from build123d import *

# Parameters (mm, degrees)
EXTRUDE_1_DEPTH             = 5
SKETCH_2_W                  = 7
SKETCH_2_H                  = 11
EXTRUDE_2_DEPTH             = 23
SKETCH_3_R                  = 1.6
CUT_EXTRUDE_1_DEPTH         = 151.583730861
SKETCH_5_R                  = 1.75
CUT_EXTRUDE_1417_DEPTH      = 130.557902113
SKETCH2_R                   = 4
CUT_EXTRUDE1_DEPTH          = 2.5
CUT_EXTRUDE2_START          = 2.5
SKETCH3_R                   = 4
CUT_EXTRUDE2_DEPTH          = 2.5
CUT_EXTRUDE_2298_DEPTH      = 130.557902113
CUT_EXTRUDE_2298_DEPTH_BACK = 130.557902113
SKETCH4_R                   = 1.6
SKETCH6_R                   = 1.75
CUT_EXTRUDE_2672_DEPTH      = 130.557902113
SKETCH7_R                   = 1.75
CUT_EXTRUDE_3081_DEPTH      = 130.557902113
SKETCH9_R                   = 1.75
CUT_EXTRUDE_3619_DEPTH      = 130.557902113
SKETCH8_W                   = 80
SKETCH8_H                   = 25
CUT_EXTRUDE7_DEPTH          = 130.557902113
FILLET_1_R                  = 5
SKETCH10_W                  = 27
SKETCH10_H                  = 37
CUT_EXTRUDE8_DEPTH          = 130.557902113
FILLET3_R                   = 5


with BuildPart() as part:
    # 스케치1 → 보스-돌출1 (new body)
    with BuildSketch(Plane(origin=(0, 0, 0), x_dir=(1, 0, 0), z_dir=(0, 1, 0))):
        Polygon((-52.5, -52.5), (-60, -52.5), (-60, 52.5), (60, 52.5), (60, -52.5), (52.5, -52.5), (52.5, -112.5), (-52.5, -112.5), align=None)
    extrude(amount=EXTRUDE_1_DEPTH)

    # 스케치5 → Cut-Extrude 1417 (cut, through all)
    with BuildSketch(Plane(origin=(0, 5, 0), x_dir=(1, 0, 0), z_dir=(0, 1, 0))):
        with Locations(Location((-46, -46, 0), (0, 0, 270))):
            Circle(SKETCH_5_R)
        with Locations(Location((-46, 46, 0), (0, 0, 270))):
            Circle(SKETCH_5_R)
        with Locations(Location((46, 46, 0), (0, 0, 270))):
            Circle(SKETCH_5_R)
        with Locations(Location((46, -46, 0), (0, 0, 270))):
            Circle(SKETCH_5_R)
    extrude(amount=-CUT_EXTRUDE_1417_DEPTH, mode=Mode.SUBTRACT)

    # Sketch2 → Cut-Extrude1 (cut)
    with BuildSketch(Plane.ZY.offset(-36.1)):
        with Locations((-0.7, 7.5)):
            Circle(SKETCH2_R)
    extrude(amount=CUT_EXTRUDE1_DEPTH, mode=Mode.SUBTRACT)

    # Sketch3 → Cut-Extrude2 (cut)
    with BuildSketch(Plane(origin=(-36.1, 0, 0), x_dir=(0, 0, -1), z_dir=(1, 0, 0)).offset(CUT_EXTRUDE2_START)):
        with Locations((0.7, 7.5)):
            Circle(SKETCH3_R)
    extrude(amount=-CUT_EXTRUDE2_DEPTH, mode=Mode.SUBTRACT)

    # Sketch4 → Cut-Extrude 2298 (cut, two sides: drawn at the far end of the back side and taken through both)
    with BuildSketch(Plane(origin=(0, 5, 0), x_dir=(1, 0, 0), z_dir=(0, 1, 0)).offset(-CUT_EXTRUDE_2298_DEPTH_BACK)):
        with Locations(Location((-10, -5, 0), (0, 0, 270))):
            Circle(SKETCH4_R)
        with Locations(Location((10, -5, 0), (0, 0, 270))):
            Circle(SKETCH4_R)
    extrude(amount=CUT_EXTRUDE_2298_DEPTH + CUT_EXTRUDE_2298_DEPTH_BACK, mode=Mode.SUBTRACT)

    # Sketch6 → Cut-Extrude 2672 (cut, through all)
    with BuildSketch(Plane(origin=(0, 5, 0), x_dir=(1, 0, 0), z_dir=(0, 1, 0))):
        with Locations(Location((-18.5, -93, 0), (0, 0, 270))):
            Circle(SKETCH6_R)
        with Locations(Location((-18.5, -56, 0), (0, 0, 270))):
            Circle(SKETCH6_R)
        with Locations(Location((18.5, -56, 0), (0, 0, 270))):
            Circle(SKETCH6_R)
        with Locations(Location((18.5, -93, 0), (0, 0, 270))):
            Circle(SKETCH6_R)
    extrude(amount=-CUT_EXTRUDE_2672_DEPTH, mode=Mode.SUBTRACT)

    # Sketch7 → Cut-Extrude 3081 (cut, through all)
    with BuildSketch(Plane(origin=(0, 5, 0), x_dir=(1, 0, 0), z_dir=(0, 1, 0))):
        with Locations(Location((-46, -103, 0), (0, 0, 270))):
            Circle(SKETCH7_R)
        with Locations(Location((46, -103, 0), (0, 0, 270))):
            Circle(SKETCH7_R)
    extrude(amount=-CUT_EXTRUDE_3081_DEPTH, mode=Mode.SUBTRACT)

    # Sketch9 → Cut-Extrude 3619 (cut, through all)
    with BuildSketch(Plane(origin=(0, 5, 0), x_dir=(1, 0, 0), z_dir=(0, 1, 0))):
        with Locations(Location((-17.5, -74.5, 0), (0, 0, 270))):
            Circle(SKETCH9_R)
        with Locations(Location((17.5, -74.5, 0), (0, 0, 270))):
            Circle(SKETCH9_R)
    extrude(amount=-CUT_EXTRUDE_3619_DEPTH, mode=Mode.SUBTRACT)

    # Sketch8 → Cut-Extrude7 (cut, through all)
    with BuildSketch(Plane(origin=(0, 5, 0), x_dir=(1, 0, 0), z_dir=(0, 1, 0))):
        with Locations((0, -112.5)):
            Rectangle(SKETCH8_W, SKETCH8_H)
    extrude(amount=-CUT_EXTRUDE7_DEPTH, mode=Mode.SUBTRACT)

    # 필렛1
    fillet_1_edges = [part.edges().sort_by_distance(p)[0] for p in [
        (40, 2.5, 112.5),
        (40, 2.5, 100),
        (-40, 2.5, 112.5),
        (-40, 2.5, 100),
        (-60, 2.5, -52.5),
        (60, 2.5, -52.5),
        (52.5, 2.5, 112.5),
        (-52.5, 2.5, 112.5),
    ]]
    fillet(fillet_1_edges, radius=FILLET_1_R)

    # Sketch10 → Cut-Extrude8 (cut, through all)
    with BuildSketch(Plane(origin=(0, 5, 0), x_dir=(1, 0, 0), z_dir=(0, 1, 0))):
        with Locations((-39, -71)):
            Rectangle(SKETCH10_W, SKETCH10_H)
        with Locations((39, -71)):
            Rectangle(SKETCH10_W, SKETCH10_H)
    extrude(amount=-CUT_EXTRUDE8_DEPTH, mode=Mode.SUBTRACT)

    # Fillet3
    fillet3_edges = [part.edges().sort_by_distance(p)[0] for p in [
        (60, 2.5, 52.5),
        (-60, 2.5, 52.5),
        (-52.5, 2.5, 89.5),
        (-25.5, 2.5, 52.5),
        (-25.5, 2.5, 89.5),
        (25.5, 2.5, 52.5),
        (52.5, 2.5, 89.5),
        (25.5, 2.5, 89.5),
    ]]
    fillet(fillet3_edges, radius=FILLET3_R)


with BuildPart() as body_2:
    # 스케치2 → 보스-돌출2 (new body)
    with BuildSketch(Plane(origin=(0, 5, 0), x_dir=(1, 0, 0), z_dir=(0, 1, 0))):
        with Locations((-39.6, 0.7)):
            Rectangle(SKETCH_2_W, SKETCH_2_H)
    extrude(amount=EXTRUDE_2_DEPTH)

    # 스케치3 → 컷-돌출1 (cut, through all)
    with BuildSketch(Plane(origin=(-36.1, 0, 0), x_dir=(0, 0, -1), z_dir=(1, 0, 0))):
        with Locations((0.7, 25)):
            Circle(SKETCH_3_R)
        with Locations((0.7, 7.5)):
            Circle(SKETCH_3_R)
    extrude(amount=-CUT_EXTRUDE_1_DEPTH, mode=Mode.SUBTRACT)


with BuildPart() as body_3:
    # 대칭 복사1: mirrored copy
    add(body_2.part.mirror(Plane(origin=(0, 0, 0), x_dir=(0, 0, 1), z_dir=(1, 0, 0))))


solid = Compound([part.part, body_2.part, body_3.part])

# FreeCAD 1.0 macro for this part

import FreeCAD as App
import Part
import Sketcher
Q = App.Units.Quantity


def edges_at(feature, points):
    """Names of the edges that pass closest to the given points."""
    edges = feature.Shape.Edges
    near = lambda p: min(range(len(edges)), key=lambda i: edges[i].distToShape(Part.Vertex(*p))[0])
    return sorted({f"Edge{near(p) + 1}" for p in points})


def add_polygon(sketch, points):
    """Adds a closed chain of lines whose ends are joined by coincident constraints."""
    first, n = sketch.GeometryCount, len(points)
    for a, b in zip(points, points[1:] + points[:1]):
        sketch.addGeometry(Part.LineSegment(App.Vector(*a, 0), App.Vector(*b, 0)), False)
    for i in range(n):
        sketch.addConstraint(Sketcher.Constraint("Coincident", first + i, 2, first + (i + 1) % n, 1))

doc = App.newDocument("Part")
params = doc.addObject("Spreadsheet::Sheet", "Params")
for row, (alias, value) in enumerate([
    ("sketch1_width", "105 mm"),
    ("sketch1_width2", "120 mm"),
    ("sketch1_height", "60 mm"),
    ("pad1_length", "5 mm"),
    ("sketch2_diameter", "3.5 mm"),
    ("sketch3_diameter", "8 mm"),
    ("pocket2_length", "2.5 mm"),
    ("sketch4_diameter", "8 mm"),
    ("pocket3_length", "2.5 mm"),
    ("sketch5_diameter", "3.2 mm"),
    ("sketch6_diameter", "3.5 mm"),
    ("sketch7_diameter", "3.5 mm"),
    ("sketch8_diameter", "3.5 mm"),
    ("sketch9_width", "80 mm"),
    ("sketch9_height", "25 mm"),
    ("fillet_radius", "5 mm"),
    ("sketch10_width", "27 mm"),
    ("sketch10_height", "37 mm"),
    ("fillet2_radius", "5 mm"),
    ("sketch11_width", "7 mm"),
    ("sketch11_height", "11 mm"),
    ("pad2_length", "23 mm"),
    ("sketch12_diameter", "3.2 mm"),
], start=1):
    params.set(f"A{row}", alias)
    params.set(f"B{row}", "=" + value)
    params.setAlias(f"B{row}", alias)

body = doc.addObject("PartDesign::Body", "Body")

# Sketch on XZ plane
sketch1 = doc.addObject("Sketcher::SketchObject", "Sketch")
body.addObject(sketch1)
sketch1.AttachmentSupport = (doc.XZ_Plane, [""])
sketch1.MapMode = "FlatFace"
add_polygon(sketch1, [(-60, 52.5), (-52.5, 52.5), (-52.5, 112.5), (52.5, 112.5), (52.5, 52.5), (60, 52.5), (60, -52.5), (-60, -52.5)])  # lines 0-7
sketch1.addConstraint([
    Sketcher.Constraint("Horizontal", 0),
    Sketcher.Constraint("Vertical", 1),
    Sketcher.Constraint("Horizontal", 2),
    Sketcher.Constraint("Vertical", 3),
    Sketcher.Constraint("Horizontal", 4),
    Sketcher.Constraint("Vertical", 5),
    Sketcher.Constraint("Horizontal", 6),
    Sketcher.Constraint("Vertical", 7),
    Sketcher.Constraint("Symmetric", 4, 2, 6, 2, -1, 1),
    Sketcher.Constraint("Symmetric", 0, 2, 3, 2, -2),
    Sketcher.Constraint("Equal", 2, 5),
    Sketcher.Constraint("DistanceX", 2, 1, 2, 2, Q("105 mm")),
    Sketcher.Constraint("DistanceX", 6, 2, 6, 1, Q("120 mm")),
    Sketcher.Constraint("DistanceY", 1, 1, 1, 2, Q("60 mm")),
])
sketch1.setExpression("Constraints[19]", "Params.sketch1_width")
sketch1.setExpression("Constraints[20]", "Params.sketch1_width2")
sketch1.setExpression("Constraints[21]", "Params.sketch1_height")
pad1 = doc.addObject("PartDesign::Pad", "Pad")
body.addObject(pad1)
pad1.Profile = sketch1
pad1.setExpression("Length", "Params.pad1_length")
pad1.Reversed = True

# Sketch on XZ plane
sketch2 = doc.addObject("Sketcher::SketchObject", "Sketch001")
body.addObject(sketch2)
sketch2.AttachmentSupport = (doc.XZ_Plane, [""])
sketch2.MapMode = "FlatFace"
sketch2.AttachmentOffset = App.Placement(App.Vector(0, 0, -5), App.Rotation())
sketch2.addGeometry([
    Part.Circle(App.Vector(-46, 46, 0), App.Vector(0, 0, 1), 1.75),
    Part.Circle(App.Vector(-46, -46, 0), App.Vector(0, 0, 1), 1.75),
    Part.Circle(App.Vector(46, -46, 0), App.Vector(0, 0, 1), 1.75),
    Part.Circle(App.Vector(46, 46, 0), App.Vector(0, 0, 1), 1.75),
], False)
sketch2.addConstraint([
    Sketcher.Constraint("Equal", 0, 1),
    Sketcher.Constraint("Equal", 1, 2),
    Sketcher.Constraint("Equal", 2, 3),
    Sketcher.Constraint("Symmetric", 0, 3, 2, 3, -1, 1),
    Sketcher.Constraint("Symmetric", 1, 3, 3, 3, -1, 1),
    Sketcher.Constraint("Symmetric", 1, 3, 2, 3, -2),
    Sketcher.Constraint("Diameter", 0, Q("3.5 mm")),
    Sketcher.Constraint("DistanceX", 0, 3, -1, 1, Q("46 mm")),
    Sketcher.Constraint("DistanceY", -1, 1, 0, 3, Q("46 mm")),
])
sketch2.setExpression("Constraints[6]", "Params.sketch2_diameter")
pocket1 = doc.addObject("PartDesign::Pocket", "Pocket")
body.addObject(pocket1)
pocket1.Profile = sketch2
pocket1.Type = "ThroughAll"
pocket1.Reversed = True

# Sketch on YZ plane
sketch3 = doc.addObject("Sketcher::SketchObject", "Sketch002")
body.addObject(sketch3)
sketch3.AttachmentSupport = (doc.YZ_Plane, [""])
sketch3.MapMode = "FlatFace"
sketch3.AttachmentOffset = App.Placement(App.Vector(0, 0, 36.1), App.Rotation())
sketch3.addGeometry(Part.Circle(App.Vector(7.5, -0.7, 0), App.Vector(0, 0, 1), 4), False)
sketch3.addConstraint([
    Sketcher.Constraint("Diameter", 0, Q("8 mm")),
    Sketcher.Constraint("DistanceX", -1, 1, 0, 3, Q("7.5 mm")),
    Sketcher.Constraint("DistanceY", 0, 3, -1, 1, Q("0.7 mm")),
])
sketch3.setExpression("Constraints[0]", "Params.sketch3_diameter")
pocket2 = doc.addObject("PartDesign::Pocket", "Pocket001")
body.addObject(pocket2)
pocket2.Profile = sketch3
pocket2.setExpression("Length", "Params.pocket2_length")

# Sketch on YZ plane
sketch4 = doc.addObject("Sketcher::SketchObject", "Sketch003")
body.addObject(sketch4)
sketch4.AttachmentSupport = (doc.YZ_Plane, [""])
sketch4.MapMode = "FlatFace"
sketch4.AttachmentOffset = App.Placement(App.Vector(0, 0, -33.6), App.Rotation())
sketch4.addGeometry(Part.Circle(App.Vector(7.5, -0.7, 0), App.Vector(0, 0, 1), 4), False)
sketch4.addConstraint([
    Sketcher.Constraint("Diameter", 0, Q("8 mm")),
    Sketcher.Constraint("DistanceX", -1, 1, 0, 3, Q("7.5 mm")),
    Sketcher.Constraint("DistanceY", 0, 3, -1, 1, Q("0.7 mm")),
])
sketch4.setExpression("Constraints[0]", "Params.sketch4_diameter")
pocket3 = doc.addObject("PartDesign::Pocket", "Pocket002")
body.addObject(pocket3)
pocket3.Profile = sketch4
pocket3.setExpression("Length", "Params.pocket3_length")

# Sketch on XZ plane
sketch5 = doc.addObject("Sketcher::SketchObject", "Sketch004")
body.addObject(sketch5)
sketch5.AttachmentSupport = (doc.XZ_Plane, [""])
sketch5.MapMode = "FlatFace"
sketch5.AttachmentOffset = App.Placement(App.Vector(0, 0, -5), App.Rotation())
sketch5.addGeometry([
    Part.Circle(App.Vector(-10, 5, 0), App.Vector(0, 0, 1), 1.6),
    Part.Circle(App.Vector(10, 5, 0), App.Vector(0, 0, 1), 1.6),
], False)
sketch5.addConstraint([
    Sketcher.Constraint("Equal", 0, 1),
    Sketcher.Constraint("Symmetric", 0, 3, 1, 3, -2),
    Sketcher.Constraint("Diameter", 0, Q("3.2 mm")),
    Sketcher.Constraint("DistanceX", 0, 3, -1, 1, Q("10 mm")),
    Sketcher.Constraint("DistanceY", -1, 1, 0, 3, Q("5 mm")),
])
sketch5.setExpression("Constraints[2]", "Params.sketch5_diameter")
pocket4 = doc.addObject("PartDesign::Pocket", "Pocket003")
body.addObject(pocket4)
pocket4.Profile = sketch5
pocket4.Type = "ThroughAll"
pocket4.Midplane = True

# Sketch on XZ plane
sketch6 = doc.addObject("Sketcher::SketchObject", "Sketch005")
body.addObject(sketch6)
sketch6.AttachmentSupport = (doc.XZ_Plane, [""])
sketch6.MapMode = "FlatFace"
sketch6.AttachmentOffset = App.Placement(App.Vector(0, 0, -5), App.Rotation())
sketch6.addGeometry([
    Part.Circle(App.Vector(-18.5, 93, 0), App.Vector(0, 0, 1), 1.75),
    Part.Circle(App.Vector(-18.5, 56, 0), App.Vector(0, 0, 1), 1.75),
    Part.Circle(App.Vector(18.5, 56, 0), App.Vector(0, 0, 1), 1.75),
    Part.Circle(App.Vector(18.5, 93, 0), App.Vector(0, 0, 1), 1.75),
], False)
sketch6.addConstraint([
    Sketcher.Constraint("Equal", 0, 1),
    Sketcher.Constraint("Equal", 1, 2),
    Sketcher.Constraint("Equal", 2, 3),
    Sketcher.Constraint("Symmetric", 1, 3, 2, 3, -2),
    Sketcher.Constraint("Symmetric", 0, 3, 3, 3, -2),
    Sketcher.Constraint("Vertical", 0, 3, 1, 3),
    Sketcher.Constraint("Diameter", 0, Q("3.5 mm")),
    Sketcher.Constraint("DistanceY", -1, 1, 0, 3, Q("93 mm")),
    Sketcher.Constraint("DistanceY", -1, 1, 1, 3, Q("56 mm")),
    Sketcher.Constraint("DistanceX", 1, 3, 2, 3, Q("37 mm")),
])
sketch6.setExpression("Constraints[6]", "Params.sketch6_diameter")
pocket5 = doc.addObject("PartDesign::Pocket", "Pocket004")
body.addObject(pocket5)
pocket5.Profile = sketch6
pocket5.Type = "ThroughAll"
pocket5.Reversed = True

# Sketch on XZ plane
sketch7 = doc.addObject("Sketcher::SketchObject", "Sketch006")
body.addObject(sketch7)
sketch7.AttachmentSupport = (doc.XZ_Plane, [""])
sketch7.MapMode = "FlatFace"
sketch7.AttachmentOffset = App.Placement(App.Vector(0, 0, -5), App.Rotation())
sketch7.addGeometry([
    Part.Circle(App.Vector(-46, 103, 0), App.Vector(0, 0, 1), 1.75),
    Part.Circle(App.Vector(46, 103, 0), App.Vector(0, 0, 1), 1.75),
], False)
sketch7.addConstraint([
    Sketcher.Constraint("Equal", 0, 1),
    Sketcher.Constraint("Symmetric", 0, 3, 1, 3, -2),
    Sketcher.Constraint("Diameter", 0, Q("3.5 mm")),
    Sketcher.Constraint("DistanceX", 0, 3, -1, 1, Q("46 mm")),
    Sketcher.Constraint("DistanceY", -1, 1, 0, 3, Q("103 mm")),
])
sketch7.setExpression("Constraints[2]", "Params.sketch7_diameter")
pocket6 = doc.addObject("PartDesign::Pocket", "Pocket005")
body.addObject(pocket6)
pocket6.Profile = sketch7
pocket6.Type = "ThroughAll"
pocket6.Reversed = True

# Sketch on XZ plane
sketch8 = doc.addObject("Sketcher::SketchObject", "Sketch007")
body.addObject(sketch8)
sketch8.AttachmentSupport = (doc.XZ_Plane, [""])
sketch8.MapMode = "FlatFace"
sketch8.AttachmentOffset = App.Placement(App.Vector(0, 0, -5), App.Rotation())
sketch8.addGeometry([
    Part.Circle(App.Vector(-17.5, 74.5, 0), App.Vector(0, 0, 1), 1.75),
    Part.Circle(App.Vector(17.5, 74.5, 0), App.Vector(0, 0, 1), 1.75),
], False)
sketch8.addConstraint([
    Sketcher.Constraint("Equal", 0, 1),
    Sketcher.Constraint("Symmetric", 0, 3, 1, 3, -2),
    Sketcher.Constraint("Diameter", 0, Q("3.5 mm")),
    Sketcher.Constraint("DistanceX", 0, 3, 1, 3, Q("35 mm")),
    Sketcher.Constraint("DistanceY", -1, 1, 0, 3, Q("74.5 mm")),
])
sketch8.setExpression("Constraints[2]", "Params.sketch8_diameter")
pocket7 = doc.addObject("PartDesign::Pocket", "Pocket006")
body.addObject(pocket7)
pocket7.Profile = sketch8
pocket7.Type = "ThroughAll"
pocket7.Reversed = True

# Sketch on XZ plane
sketch9 = doc.addObject("Sketcher::SketchObject", "Sketch008")
body.addObject(sketch9)
sketch9.AttachmentSupport = (doc.XZ_Plane, [""])
sketch9.MapMode = "FlatFace"
sketch9.AttachmentOffset = App.Placement(App.Vector(0, 0, -5), App.Rotation())
add_polygon(sketch9, [(-40, 100), (-40, 125), (40, 125), (40, 100)])  # lines 0-3
sketch9.addConstraint([
    Sketcher.Constraint("Vertical", 0),
    Sketcher.Constraint("Horizontal", 1),
    Sketcher.Constraint("Vertical", 2),
    Sketcher.Constraint("Horizontal", 3),
    Sketcher.Constraint("DistanceX", 1, 1, 1, 2, Q("80 mm")),
    Sketcher.Constraint("DistanceY", 0, 1, 0, 2, Q("25 mm")),
    Sketcher.Constraint("DistanceX", 0, 2, -1, 1, Q("40 mm")),
    Sketcher.Constraint("DistanceY", -1, 1, 0, 2, Q("125 mm")),
])
sketch9.setExpression("Constraints[8]", "Params.sketch9_width")
sketch9.setExpression("Constraints[9]", "Params.sketch9_height")
pocket8 = doc.addObject("PartDesign::Pocket", "Pocket007")
body.addObject(pocket8)
pocket8.Profile = sketch9
pocket8.Type = "ThroughAll"
pocket8.Reversed = True
doc.recompute()

fillet = doc.addObject("PartDesign::Fillet", "Fillet")
body.addObject(fillet)
fillet.Base = (pocket8, edges_at(pocket8, [
    (40, 2.5, 112.5),
    (40, 2.5, 100),
    (-40, 2.5, 112.5),
    (-40, 2.5, 100),
    (-60, 2.5, -52.5),
    (60, 2.5, -52.5),
    (52.5, 2.5, 112.5),
    (-52.5, 2.5, 112.5),
]))
fillet.setExpression("Radius", "Params.fillet_radius")

# Sketch on XZ plane
sketch10 = doc.addObject("Sketcher::SketchObject", "Sketch009")
body.addObject(sketch10)
sketch10.AttachmentSupport = (doc.XZ_Plane, [""])
sketch10.MapMode = "FlatFace"
sketch10.AttachmentOffset = App.Placement(App.Vector(0, 0, -5), App.Rotation())
add_polygon(sketch10, [(-52.5, 52.5), (-52.5, 89.5), (-25.5, 89.5), (-25.5, 52.5)])  # lines 0-3
add_polygon(sketch10, [(25.5, 52.5), (25.5, 89.5), (52.5, 89.5), (52.5, 52.5)])  # lines 4-7
sketch10.addConstraint([
    Sketcher.Constraint("Vertical", 0),
    Sketcher.Constraint("Horizontal", 1),
    Sketcher.Constraint("Vertical", 2),
    Sketcher.Constraint("Horizontal", 3),
    Sketcher.Constraint("Vertical", 4),
    Sketcher.Constraint("Horizontal", 5),
    Sketcher.Constraint("Vertical", 6),
    Sketcher.Constraint("Horizontal", 7),
    Sketcher.Constraint("Symmetric", 1, 2, 4, 2, -2),
    Sketcher.Constraint("Symmetric", 3, 2, 6, 2, -2),
    Sketcher.Constraint("DistanceX", 1, 1, 1, 2, Q("27 mm")),
    Sketcher.Constraint("DistanceY", 0, 1, 0, 2, Q("37 mm")),
    Sketcher.Constraint("DistanceX", 1, 2, 4, 2, Q("51 mm")),
    Sketcher.Constraint("DistanceY", -1, 1, 0, 2, Q("89.5 mm")),
])
sketch10.setExpression("Constraints[18]", "Params.sketch10_width")
sketch10.setExpression("Constraints[19]", "Params.sketch10_height")
pocket9 = doc.addObject("PartDesign::Pocket", "Pocket008")
body.addObject(pocket9)
pocket9.Profile = sketch10
pocket9.Type = "ThroughAll"
pocket9.Reversed = True
doc.recompute()

fillet2 = doc.addObject("PartDesign::Fillet", "Fillet001")
body.addObject(fillet2)
fillet2.Base = (pocket9, edges_at(pocket9, [
    (60, 2.5, 52.5),
    (-60, 2.5, 52.5),
    (-52.5, 2.5, 89.5),
    (-25.5, 2.5, 52.5),
    (-25.5, 2.5, 89.5),
    (25.5, 2.5, 52.5),
    (52.5, 2.5, 89.5),
    (25.5, 2.5, 89.5),
]))
fillet2.setExpression("Radius", "Params.fillet2_radius")
body2 = doc.addObject("PartDesign::Body", "Body001")

# Sketch on XZ plane
sketch11 = doc.addObject("Sketcher::SketchObject", "Sketch010")
body2.addObject(sketch11)
sketch11.AttachmentSupport = (doc.getObject("XZ_Plane001"), [""])
sketch11.MapMode = "FlatFace"
sketch11.AttachmentOffset = App.Placement(App.Vector(0, 0, -5), App.Rotation())
add_polygon(sketch11, [(-43.1, -6.2), (-43.1, 4.8), (-36.1, 4.8), (-36.1, -6.2)])  # lines 0-3
sketch11.addConstraint([
    Sketcher.Constraint("Vertical", 0),
    Sketcher.Constraint("Horizontal", 1),
    Sketcher.Constraint("Vertical", 2),
    Sketcher.Constraint("Horizontal", 3),
    Sketcher.Constraint("DistanceX", 1, 1, 1, 2, Q("7 mm")),
    Sketcher.Constraint("DistanceY", 0, 1, 0, 2, Q("11 mm")),
    Sketcher.Constraint("DistanceX", 0, 2, -1, 1, Q("43.1 mm")),
    Sketcher.Constraint("DistanceY", -1, 1, 0, 2, Q("4.8 mm")),
])
sketch11.setExpression("Constraints[8]", "Params.sketch11_width")
sketch11.setExpression("Constraints[9]", "Params.sketch11_height")
pad2 = doc.addObject("PartDesign::Pad", "Pad001")
body2.addObject(pad2)
pad2.Profile = sketch11
pad2.setExpression("Length", "Params.pad2_length")
pad2.Reversed = True

# Sketch on YZ plane
sketch12 = doc.addObject("Sketcher::SketchObject", "Sketch011")
body2.addObject(sketch12)
sketch12.AttachmentSupport = (doc.getObject("YZ_Plane001"), [""])
sketch12.MapMode = "FlatFace"
sketch12.AttachmentOffset = App.Placement(App.Vector(0, 0, -36.1), App.Rotation())
sketch12.addGeometry([
    Part.Circle(App.Vector(25, -0.7, 0), App.Vector(0, 0, 1), 1.6),
    Part.Circle(App.Vector(7.5, -0.7, 0), App.Vector(0, 0, 1), 1.6),
], False)
sketch12.addConstraint([
    Sketcher.Constraint("Equal", 0, 1),
    Sketcher.Constraint("Horizontal", 0, 3, 1, 3),
    Sketcher.Constraint("Diameter", 0, Q("3.2 mm")),
    Sketcher.Constraint("DistanceX", -1, 1, 0, 3, Q("25 mm")),
    Sketcher.Constraint("DistanceY", 0, 3, -1, 1, Q("0.7 mm")),
    Sketcher.Constraint("DistanceX", -1, 1, 1, 3, Q("7.5 mm")),
])
sketch12.setExpression("Constraints[2]", "Params.sketch12_diameter")
pocket10 = doc.addObject("PartDesign::Pocket", "Pocket009")
body2.addObject(pocket10)
pocket10.Profile = sketch12
pocket10.Type = "ThroughAll"
body3 = doc.addObject("PartDesign::Body", "Body002")
doc.recompute()

mirroring = doc.addObject("Part::Mirroring", "Mirroring")
mirroring.Source = body2
mirroring.Base = App.Vector(0, 0, 0)
mirroring.Normal = App.Vector(1, 0, 0)
body3.BaseFeature = mirroring
doc.recompute()
mirroring.Visibility = False

doc.recompute()
